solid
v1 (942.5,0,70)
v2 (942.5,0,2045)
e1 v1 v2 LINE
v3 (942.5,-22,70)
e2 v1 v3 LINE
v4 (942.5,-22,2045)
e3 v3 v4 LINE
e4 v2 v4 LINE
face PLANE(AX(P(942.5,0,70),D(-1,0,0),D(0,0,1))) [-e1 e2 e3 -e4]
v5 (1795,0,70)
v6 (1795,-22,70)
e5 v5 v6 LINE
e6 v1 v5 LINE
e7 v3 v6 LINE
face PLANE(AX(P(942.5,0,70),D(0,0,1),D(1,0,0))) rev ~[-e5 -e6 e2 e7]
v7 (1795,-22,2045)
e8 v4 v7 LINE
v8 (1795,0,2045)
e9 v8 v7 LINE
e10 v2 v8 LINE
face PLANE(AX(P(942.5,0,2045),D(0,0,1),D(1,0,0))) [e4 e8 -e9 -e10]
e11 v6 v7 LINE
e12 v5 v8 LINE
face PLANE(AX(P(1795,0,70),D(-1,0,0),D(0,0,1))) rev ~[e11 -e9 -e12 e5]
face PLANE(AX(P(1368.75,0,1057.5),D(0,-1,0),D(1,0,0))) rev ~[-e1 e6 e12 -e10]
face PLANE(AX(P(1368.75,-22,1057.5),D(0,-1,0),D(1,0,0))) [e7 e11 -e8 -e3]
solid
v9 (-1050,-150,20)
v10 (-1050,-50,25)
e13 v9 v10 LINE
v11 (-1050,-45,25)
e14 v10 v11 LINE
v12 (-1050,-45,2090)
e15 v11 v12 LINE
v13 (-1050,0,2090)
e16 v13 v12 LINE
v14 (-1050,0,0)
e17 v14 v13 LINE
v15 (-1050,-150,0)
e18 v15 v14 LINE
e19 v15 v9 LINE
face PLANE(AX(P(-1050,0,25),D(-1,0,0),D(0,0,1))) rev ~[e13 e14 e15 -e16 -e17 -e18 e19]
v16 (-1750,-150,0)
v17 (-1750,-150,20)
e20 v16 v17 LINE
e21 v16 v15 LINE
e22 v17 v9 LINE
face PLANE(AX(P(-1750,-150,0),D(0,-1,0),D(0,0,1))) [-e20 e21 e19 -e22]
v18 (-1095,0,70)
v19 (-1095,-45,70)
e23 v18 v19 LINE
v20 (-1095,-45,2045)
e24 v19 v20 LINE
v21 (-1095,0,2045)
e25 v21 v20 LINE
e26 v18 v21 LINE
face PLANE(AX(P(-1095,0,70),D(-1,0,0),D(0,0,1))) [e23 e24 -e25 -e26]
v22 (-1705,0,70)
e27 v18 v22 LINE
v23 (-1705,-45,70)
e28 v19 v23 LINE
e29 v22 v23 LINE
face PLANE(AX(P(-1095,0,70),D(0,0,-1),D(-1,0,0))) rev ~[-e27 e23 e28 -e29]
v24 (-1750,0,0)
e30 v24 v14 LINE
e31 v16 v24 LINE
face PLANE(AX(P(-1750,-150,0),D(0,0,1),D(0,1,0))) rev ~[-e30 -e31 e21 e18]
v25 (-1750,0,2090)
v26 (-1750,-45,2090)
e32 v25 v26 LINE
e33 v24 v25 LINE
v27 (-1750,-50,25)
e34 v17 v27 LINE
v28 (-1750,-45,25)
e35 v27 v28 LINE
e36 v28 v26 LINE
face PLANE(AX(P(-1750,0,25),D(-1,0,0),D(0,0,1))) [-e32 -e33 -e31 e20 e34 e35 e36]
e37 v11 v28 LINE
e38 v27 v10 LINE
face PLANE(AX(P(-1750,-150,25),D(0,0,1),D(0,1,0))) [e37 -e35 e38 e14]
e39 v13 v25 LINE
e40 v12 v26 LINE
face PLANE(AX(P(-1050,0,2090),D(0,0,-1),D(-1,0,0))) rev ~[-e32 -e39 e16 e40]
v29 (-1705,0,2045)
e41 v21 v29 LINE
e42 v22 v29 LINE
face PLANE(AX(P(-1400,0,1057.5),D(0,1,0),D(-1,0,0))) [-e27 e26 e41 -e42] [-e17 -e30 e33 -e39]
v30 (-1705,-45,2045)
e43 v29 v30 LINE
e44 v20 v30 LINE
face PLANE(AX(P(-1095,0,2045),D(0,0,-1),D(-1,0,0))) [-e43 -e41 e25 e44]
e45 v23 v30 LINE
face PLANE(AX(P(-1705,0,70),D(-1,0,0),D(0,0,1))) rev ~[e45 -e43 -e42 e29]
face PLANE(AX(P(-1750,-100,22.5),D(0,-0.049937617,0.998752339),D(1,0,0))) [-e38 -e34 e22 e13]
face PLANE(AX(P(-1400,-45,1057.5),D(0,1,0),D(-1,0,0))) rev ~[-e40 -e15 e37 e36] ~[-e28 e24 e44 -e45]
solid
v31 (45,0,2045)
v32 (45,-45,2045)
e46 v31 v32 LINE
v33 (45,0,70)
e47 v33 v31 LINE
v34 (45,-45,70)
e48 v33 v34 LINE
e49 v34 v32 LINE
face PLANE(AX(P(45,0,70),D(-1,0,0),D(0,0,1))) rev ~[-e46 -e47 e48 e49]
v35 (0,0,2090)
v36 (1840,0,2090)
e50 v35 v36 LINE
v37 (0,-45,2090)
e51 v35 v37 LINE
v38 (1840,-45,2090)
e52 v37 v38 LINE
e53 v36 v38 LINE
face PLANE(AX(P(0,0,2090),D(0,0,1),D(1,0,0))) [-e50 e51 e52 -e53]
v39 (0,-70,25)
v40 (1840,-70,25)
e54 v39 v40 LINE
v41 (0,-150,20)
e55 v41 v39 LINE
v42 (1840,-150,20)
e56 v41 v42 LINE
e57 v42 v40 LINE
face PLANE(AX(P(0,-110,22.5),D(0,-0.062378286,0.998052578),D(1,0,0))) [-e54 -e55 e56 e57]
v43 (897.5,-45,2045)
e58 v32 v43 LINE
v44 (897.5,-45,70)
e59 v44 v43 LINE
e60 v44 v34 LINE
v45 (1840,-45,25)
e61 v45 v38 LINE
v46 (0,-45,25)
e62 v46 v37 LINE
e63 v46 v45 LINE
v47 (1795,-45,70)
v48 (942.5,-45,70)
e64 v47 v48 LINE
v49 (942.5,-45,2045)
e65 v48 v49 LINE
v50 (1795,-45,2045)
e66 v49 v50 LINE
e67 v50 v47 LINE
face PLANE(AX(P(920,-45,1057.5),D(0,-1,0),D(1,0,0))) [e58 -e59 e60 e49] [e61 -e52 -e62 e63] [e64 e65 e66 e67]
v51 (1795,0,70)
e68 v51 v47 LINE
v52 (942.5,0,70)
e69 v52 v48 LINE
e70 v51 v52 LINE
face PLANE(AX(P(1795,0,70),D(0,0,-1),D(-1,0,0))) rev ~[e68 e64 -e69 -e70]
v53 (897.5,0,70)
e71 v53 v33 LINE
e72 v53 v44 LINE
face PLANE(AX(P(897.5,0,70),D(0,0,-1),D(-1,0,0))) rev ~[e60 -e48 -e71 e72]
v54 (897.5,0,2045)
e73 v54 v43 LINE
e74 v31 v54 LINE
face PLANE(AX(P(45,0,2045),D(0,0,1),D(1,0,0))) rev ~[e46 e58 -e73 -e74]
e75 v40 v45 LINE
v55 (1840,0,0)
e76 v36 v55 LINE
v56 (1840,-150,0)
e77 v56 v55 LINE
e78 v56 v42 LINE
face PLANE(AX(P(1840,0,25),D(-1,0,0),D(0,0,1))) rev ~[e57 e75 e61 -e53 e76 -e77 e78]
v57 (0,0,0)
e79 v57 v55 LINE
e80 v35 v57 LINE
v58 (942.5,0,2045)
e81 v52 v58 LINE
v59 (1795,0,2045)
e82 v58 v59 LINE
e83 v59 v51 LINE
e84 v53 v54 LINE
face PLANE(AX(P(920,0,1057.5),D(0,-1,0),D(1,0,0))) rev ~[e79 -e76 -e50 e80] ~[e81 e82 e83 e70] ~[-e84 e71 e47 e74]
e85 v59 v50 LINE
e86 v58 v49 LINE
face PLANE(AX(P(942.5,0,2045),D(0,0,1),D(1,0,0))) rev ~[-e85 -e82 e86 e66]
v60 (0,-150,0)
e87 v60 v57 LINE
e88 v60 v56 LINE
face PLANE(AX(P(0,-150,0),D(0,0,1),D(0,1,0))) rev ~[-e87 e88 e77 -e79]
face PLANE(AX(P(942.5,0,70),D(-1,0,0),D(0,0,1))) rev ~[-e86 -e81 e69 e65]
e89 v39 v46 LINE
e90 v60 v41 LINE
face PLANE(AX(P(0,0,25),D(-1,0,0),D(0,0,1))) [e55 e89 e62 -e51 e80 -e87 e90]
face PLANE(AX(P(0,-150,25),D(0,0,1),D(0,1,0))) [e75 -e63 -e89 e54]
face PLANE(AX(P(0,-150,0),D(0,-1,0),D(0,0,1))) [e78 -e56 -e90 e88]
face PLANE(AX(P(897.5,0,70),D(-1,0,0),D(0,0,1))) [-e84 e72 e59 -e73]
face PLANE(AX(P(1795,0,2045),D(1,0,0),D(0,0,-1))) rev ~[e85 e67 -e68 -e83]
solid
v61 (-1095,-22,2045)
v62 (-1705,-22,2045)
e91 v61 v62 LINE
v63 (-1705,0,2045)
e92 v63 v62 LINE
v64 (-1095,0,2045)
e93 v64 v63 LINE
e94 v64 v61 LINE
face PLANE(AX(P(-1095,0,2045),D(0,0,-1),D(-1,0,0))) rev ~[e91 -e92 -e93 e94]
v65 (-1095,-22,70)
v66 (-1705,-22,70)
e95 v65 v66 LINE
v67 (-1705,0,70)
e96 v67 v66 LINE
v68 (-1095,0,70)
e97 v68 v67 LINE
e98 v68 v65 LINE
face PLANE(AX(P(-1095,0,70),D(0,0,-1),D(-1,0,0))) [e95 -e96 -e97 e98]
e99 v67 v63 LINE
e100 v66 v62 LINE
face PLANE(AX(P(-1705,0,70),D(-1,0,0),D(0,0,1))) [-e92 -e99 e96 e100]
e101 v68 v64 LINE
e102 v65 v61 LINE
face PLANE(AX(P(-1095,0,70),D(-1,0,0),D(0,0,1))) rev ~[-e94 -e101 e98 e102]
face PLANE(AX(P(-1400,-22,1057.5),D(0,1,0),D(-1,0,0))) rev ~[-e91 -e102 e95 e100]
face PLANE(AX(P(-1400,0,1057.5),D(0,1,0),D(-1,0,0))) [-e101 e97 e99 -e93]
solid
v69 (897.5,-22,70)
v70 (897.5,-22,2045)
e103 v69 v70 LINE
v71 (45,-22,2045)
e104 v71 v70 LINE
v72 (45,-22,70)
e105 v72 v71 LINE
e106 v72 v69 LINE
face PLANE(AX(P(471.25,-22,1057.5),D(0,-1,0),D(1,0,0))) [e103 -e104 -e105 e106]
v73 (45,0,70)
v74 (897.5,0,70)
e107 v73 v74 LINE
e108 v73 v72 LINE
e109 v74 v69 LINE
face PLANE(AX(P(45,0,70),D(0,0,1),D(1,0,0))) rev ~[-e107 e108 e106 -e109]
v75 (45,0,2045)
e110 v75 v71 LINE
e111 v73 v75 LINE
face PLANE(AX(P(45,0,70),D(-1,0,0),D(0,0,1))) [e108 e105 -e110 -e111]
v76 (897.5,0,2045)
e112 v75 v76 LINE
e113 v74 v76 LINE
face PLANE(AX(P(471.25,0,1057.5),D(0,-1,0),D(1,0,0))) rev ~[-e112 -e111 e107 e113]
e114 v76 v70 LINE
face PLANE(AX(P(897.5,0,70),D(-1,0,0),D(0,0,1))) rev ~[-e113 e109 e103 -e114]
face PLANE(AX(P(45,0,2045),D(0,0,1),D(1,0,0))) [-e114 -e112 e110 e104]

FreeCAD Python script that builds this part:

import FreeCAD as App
import Part
import Sketcher
Q = App.Units.Quantity


def edges_at(feature, points):
    """Names of the edges that pass closest to the given points."""
    edges = feature.Shape.Edges
    near = lambda p: min(range(len(edges)), key=lambda i: edges[i].distToShape(Part.Vertex(*p))[0])
    return sorted({f"Edge{near(p) + 1}" for p in points})

doc = App.newDocument("Part")
body = doc.addObject("PartDesign::Body", "Body")

# Sketch on YZ plane
sketch1 = body.newObject("Sketcher::SketchObject", "Sketch")
sketch1.AttachmentSupport = (doc.getObject("YZ_Plane"), [""])
sketch1.MapMode = "FlatFace"
sketch1.addGeometry([
    Part.LineSegment(App.Vector(-150, 25, 0), App.Vector(-150, 0, 0)),
    Part.LineSegment(App.Vector(-150, 0, 0), App.Vector(0, 0, 0)),
    Part.LineSegment(App.Vector(0, 0, 0), App.Vector(0, 25, 0)),
    Part.LineSegment(App.Vector(0, 25, 0), App.Vector(-150, 25, 0)),
], False)
sketch1.addConstraint([
    Sketcher.Constraint("Coincident", 0, 2, 1, 1),
    Sketcher.Constraint("Coincident", 1, 2, 2, 1),
    Sketcher.Constraint("Coincident", 2, 2, 3, 1),
    Sketcher.Constraint("Coincident", 3, 2, 0, 1),
    Sketcher.Constraint("Vertical", 0),
    Sketcher.Constraint("Horizontal", 1),
    Sketcher.Constraint("Vertical", 2),
    Sketcher.Constraint("Horizontal", 3),
    Sketcher.Constraint("Coincident", 1, 2, -1, 1),
    Sketcher.Constraint("DistanceX", 1, 1, 1, 2, Q("150 mm")),
    Sketcher.Constraint("DistanceY", 0, 2, 0, 1, Q("25 mm")),
])
pad1 = body.newObject("PartDesign::Pad", "Pad")
pad1.Profile = sketch1
pad1.Length = 1840

# Sketch on XZ plane
sketch2 = body.newObject("Sketcher::SketchObject", "Sketch001")
sketch2.AttachmentSupport = (doc.getObject("XZ_Plane"), [""])
sketch2.MapMode = "FlatFace"
sketch2.addGeometry([
    Part.LineSegment(App.Vector(0, 2090, 0), App.Vector(0, 25, 0)),  # 0
    Part.LineSegment(App.Vector(0, 25, 0), App.Vector(1840, 25, 0)),  # 1
    Part.LineSegment(App.Vector(1840, 25, 0), App.Vector(1840, 2090, 0)),  # 2
    Part.LineSegment(App.Vector(1840, 2090, 0), App.Vector(0, 2090, 0)),  # 3
    Part.LineSegment(App.Vector(1795, 70, 0), App.Vector(942, 70, 0)),  # 4
    Part.LineSegment(App.Vector(942, 70, 0), App.Vector(942, 2045, 0)),  # 5
    Part.LineSegment(App.Vector(942, 2045, 0), App.Vector(1795, 2045, 0)),  # 6
    Part.LineSegment(App.Vector(1795, 2045, 0), App.Vector(1795, 70, 0)),  # 7
    Part.LineSegment(App.Vector(898, 70, 0), App.Vector(45, 70, 0)),  # 8
    Part.LineSegment(App.Vector(45, 70, 0), App.Vector(45, 2045, 0)),  # 9
    Part.LineSegment(App.Vector(45, 2045, 0), App.Vector(898, 2045, 0)),  # 10
    Part.LineSegment(App.Vector(898, 2045, 0), App.Vector(898, 70, 0)),  # 11
], False)
sketch2.addConstraint([
    Sketcher.Constraint("Coincident", 0, 2, 1, 1),
    Sketcher.Constraint("Coincident", 1, 2, 2, 1),
    Sketcher.Constraint("Coincident", 2, 2, 3, 1),
    Sketcher.Constraint("Coincident", 3, 2, 0, 1),
    Sketcher.Constraint("Coincident", 4, 2, 5, 1),
    Sketcher.Constraint("Coincident", 5, 2, 6, 1),
    Sketcher.Constraint("Coincident", 6, 2, 7, 1),
    Sketcher.Constraint("Coincident", 7, 2, 4, 1),
    Sketcher.Constraint("Coincident", 8, 2, 9, 1),
    Sketcher.Constraint("Coincident", 9, 2, 10, 1),
    Sketcher.Constraint("Coincident", 10, 2, 11, 1),
    Sketcher.Constraint("Coincident", 11, 2, 8, 1),
    Sketcher.Constraint("Vertical", 0),
    Sketcher.Constraint("Horizontal", 1),
    Sketcher.Constraint("Vertical", 2),
    Sketcher.Constraint("Horizontal", 3),
    Sketcher.Constraint("Horizontal", 4),
    Sketcher.Constraint("Vertical", 5),
    Sketcher.Constraint("Horizontal", 6),
    Sketcher.Constraint("Vertical", 7),
    Sketcher.Constraint("Horizontal", 8),
    Sketcher.Constraint("Vertical", 9),
    Sketcher.Constraint("Horizontal", 10),
    Sketcher.Constraint("Vertical", 11),
    Sketcher.Constraint("PointOnObject", 0, 2, -2),
    Sketcher.Constraint("Horizontal", 7, 2, 8, 2),
    Sketcher.Constraint("Horizontal", 6, 2, 9, 2),
    Sketcher.Constraint("Equal", 6, 8),
    Sketcher.Constraint("DistanceX", 1, 1, 1, 2, Q("1840 mm")),
    Sketcher.Constraint("DistanceY", 0, 2, 0, 1, Q("2065 mm")),
    Sketcher.Constraint("DistanceY", 5, 1, 5, 2, Q("1975 mm")),
    Sketcher.Constraint("DistanceX", 4, 2, 4, 1, Q("852.5 mm")),
    Sketcher.Constraint("DistanceY", -1, 1, 0, 2, Q("25 mm")),
    Sketcher.Constraint("DistanceY", -1, 1, 4, 2, Q("70 mm")),
    Sketcher.Constraint("DistanceX", -1, 1, 6, 2, Q("1795 mm")),
    Sketcher.Constraint("DistanceX", -1, 1, 8, 2, Q("45 mm")),
])
pad2 = body.newObject("PartDesign::Pad", "Pad001")
pad2.Profile = sketch2
pad2.Length = 45
doc.recompute()

chamfer = body.newObject("PartDesign::Chamfer", "Chamfer")
chamfer.Base = (pad2, edges_at(pad2, [(920, -150, 25)]))
chamfer.ChamferType = "Two distances"
chamfer.Size = 5
chamfer.Size2 = 80
body2 = doc.addObject("PartDesign::Body", "Body001")

# Sketch on XZ plane
sketch3 = body2.newObject("Sketcher::SketchObject", "Sketch002")
sketch3.AttachmentSupport = (doc.getObject("XZ_Plane001"), [""])
sketch3.MapMode = "FlatFace"
sketch3.addGeometry([
    Part.LineSegment(App.Vector(45, 2045, 0), App.Vector(45, 70, 0)),
    Part.LineSegment(App.Vector(45, 70, 0), App.Vector(898, 70, 0)),
    Part.LineSegment(App.Vector(898, 70, 0), App.Vector(898, 2045, 0)),
    Part.LineSegment(App.Vector(898, 2045, 0), App.Vector(45, 2045, 0)),
], False)
sketch3.addConstraint([
    Sketcher.Constraint("Coincident", 0, 2, 1, 1),
    Sketcher.Constraint("Coincident", 1, 2, 2, 1),
    Sketcher.Constraint("Coincident", 2, 2, 3, 1),
    Sketcher.Constraint("Coincident", 3, 2, 0, 1),
    Sketcher.Constraint("Vertical", 0),
    Sketcher.Constraint("Horizontal", 1),
    Sketcher.Constraint("Vertical", 2),
    Sketcher.Constraint("Horizontal", 3),
    Sketcher.Constraint("DistanceY", 0, 2, 0, 1, Q("1975 mm")),
    Sketcher.Constraint("DistanceX", 1, 1, 1, 2, Q("852.5 mm")),
    Sketcher.Constraint("DistanceX", -1, 1, 0, 2, Q("45 mm")),
    Sketcher.Constraint("DistanceY", -1, 1, 0, 2, Q("70 mm")),
])
pad3 = body2.newObject("PartDesign::Pad", "Pad002")
pad3.Profile = sketch3
pad3.Length = 22
body3 = doc.addObject("PartDesign::Body", "Body002")

# Sketch on XZ plane
sketch4 = body3.newObject("Sketcher::SketchObject", "Sketch003")
sketch4.AttachmentSupport = (doc.getObject("XZ_Plane002"), [""])
sketch4.MapMode = "FlatFace"
sketch4.addGeometry([
    Part.LineSegment(App.Vector(942, 2045, 0), App.Vector(942, 70, 0)),
    Part.LineSegment(App.Vector(942, 70, 0), App.Vector(1795, 70, 0)),
    Part.LineSegment(App.Vector(1795, 70, 0), App.Vector(1795, 2045, 0)),
    Part.LineSegment(App.Vector(1795, 2045, 0), App.Vector(942, 2045, 0)),
], False)
sketch4.addConstraint([
    Sketcher.Constraint("Coincident", 0, 2, 1, 1),
    Sketcher.Constraint("Coincident", 1, 2, 2, 1),
    Sketcher.Constraint("Coincident", 2, 2, 3, 1),
    Sketcher.Constraint("Coincident", 3, 2, 0, 1),
    Sketcher.Constraint("Vertical", 0),
    Sketcher.Constraint("Horizontal", 1),
    Sketcher.Constraint("Vertical", 2),
    Sketcher.Constraint("Horizontal", 3),
    Sketcher.Constraint("DistanceY", 0, 2, 0, 1, Q("1975 mm")),
    Sketcher.Constraint("DistanceX", 1, 1, 1, 2, Q("852.5 mm")),
    Sketcher.Constraint("DistanceY", -1, 1, 0, 2, Q("70 mm")),
    Sketcher.Constraint("DistanceX", -1, 1, 1, 2, Q("1795 mm")),
])
pad4 = body3.newObject("PartDesign::Pad", "Pad003")
pad4.Profile = sketch4
pad4.Length = 22
body4 = doc.addObject("PartDesign::Body", "Body003")

# Sketch on YZ plane
sketch5 = body4.newObject("Sketcher::SketchObject", "Sketch004")
sketch5.AttachmentSupport = (doc.getObject("YZ_Plane003"), [""])
sketch5.MapMode = "FlatFace"
sketch5.AttachmentOffset = App.Placement(App.Vector(0, 0, -1750), App.Rotation())
sketch5.addGeometry([
    Part.LineSegment(App.Vector(-150, 25, 0), App.Vector(-150, 0, 0)),
    Part.LineSegment(App.Vector(-150, 0, 0), App.Vector(0, 0, 0)),
    Part.LineSegment(App.Vector(0, 0, 0), App.Vector(0, 25, 0)),
    Part.LineSegment(App.Vector(0, 25, 0), App.Vector(-150, 25, 0)),
], False)
sketch5.addConstraint([
    Sketcher.Constraint("Coincident", 0, 2, 1, 1),
    Sketcher.Constraint("Coincident", 1, 2, 2, 1),
    Sketcher.Constraint("Coincident", 2, 2, 3, 1),
    Sketcher.Constraint("Coincident", 3, 2, 0, 1),
    Sketcher.Constraint("Vertical", 0),
    Sketcher.Constraint("Horizontal", 1),
    Sketcher.Constraint("Vertical", 2),
    Sketcher.Constraint("Horizontal", 3),
    Sketcher.Constraint("Coincident", 1, 2, -1, 1),
    Sketcher.Constraint("DistanceX", 1, 1, 1, 2, Q("150 mm")),
    Sketcher.Constraint("DistanceY", 0, 2, 0, 1, Q("25 mm")),
])
pad5 = body4.newObject("PartDesign::Pad", "Pad004")
pad5.Profile = sketch5
pad5.Length = 700

# Sketch on XZ plane
sketch6 = body4.newObject("Sketcher::SketchObject", "Sketch005")
sketch6.AttachmentSupport = (doc.getObject("XZ_Plane003"), [""])
sketch6.MapMode = "FlatFace"
sketch6.addGeometry([
    Part.LineSegment(App.Vector(-1050, 2090, 0), App.Vector(-1050, 25, 0)),  # 0
    Part.LineSegment(App.Vector(-1050, 25, 0), App.Vector(-1750, 25, 0)),  # 1
    Part.LineSegment(App.Vector(-1750, 25, 0), App.Vector(-1750, 2090, 0)),  # 2
    Part.LineSegment(App.Vector(-1750, 2090, 0), App.Vector(-1050, 2090, 0)),  # 3
    Part.LineSegment(App.Vector(-1705, 70, 0), App.Vector(-1095, 70, 0)),  # 4
    Part.LineSegment(App.Vector(-1095, 70, 0), App.Vector(-1095, 2045, 0)),  # 5
    Part.LineSegment(App.Vector(-1095, 2045, 0), App.Vector(-1705, 2045, 0)),  # 6
    Part.LineSegment(App.Vector(-1705, 2045, 0), App.Vector(-1705, 70, 0)),  # 7
], False)
sketch6.addConstraint([
    Sketcher.Constraint("Coincident", 0, 2, 1, 1),
    Sketcher.Constraint("Coincident", 1, 2, 2, 1),
    Sketcher.Constraint("Coincident", 2, 2, 3, 1),
    Sketcher.Constraint("Coincident", 3, 2, 0, 1),
    Sketcher.Constraint("Coincident", 4, 2, 5, 1),
    Sketcher.Constraint("Coincident", 5, 2, 6, 1),
    Sketcher.Constraint("Coincident", 6, 2, 7, 1),
    Sketcher.Constraint("Coincident", 7, 2, 4, 1),
    Sketcher.Constraint("Vertical", 0),
    Sketcher.Constraint("Horizontal", 1),
    Sketcher.Constraint("Vertical", 2),
    Sketcher.Constraint("Horizontal", 3),
    Sketcher.Constraint("Horizontal", 4),
    Sketcher.Constraint("Vertical", 5),
    Sketcher.Constraint("Horizontal", 6),
    Sketcher.Constraint("Vertical", 7),
    Sketcher.Constraint("DistanceX", 1, 2, 1, 1, Q("700 mm")),
    Sketcher.Constraint("DistanceX", 4, 1, 4, 2, Q("610 mm")),
    Sketcher.Constraint("DistanceY", 0, 2, 0, 1, Q("2065 mm")),
    Sketcher.Constraint("DistanceY", 5, 1, 5, 2, Q("1975 mm")),
    Sketcher.Constraint("DistanceX", 0, 2, -1, 1, Q("1050 mm")),
    Sketcher.Constraint("DistanceY", -1, 1, 0, 2, Q("25 mm")),
    Sketcher.Constraint("DistanceX", 4, 2, -1, 1, Q("1095 mm")),
    Sketcher.Constraint("DistanceY", -1, 1, 4, 2, Q("70 mm")),
])
pad6 = body4.newObject("PartDesign::Pad", "Pad005")
pad6.Profile = sketch6
pad6.Length = 45
doc.recompute()

chamfer2 = body4.newObject("PartDesign::Chamfer", "Chamfer001")
chamfer2.Base = (pad6, edges_at(pad6, [(-1400, -150, 25)]))
chamfer2.ChamferType = "Two distances"
chamfer2.Size = 5
chamfer2.Size2 = 100
body5 = doc.addObject("PartDesign::Body", "Body004")

# Sketch on XZ plane
sketch7 = body5.newObject("Sketcher::SketchObject", "Sketch006")
sketch7.AttachmentSupport = (doc.getObject("XZ_Plane004"), [""])
sketch7.MapMode = "FlatFace"
sketch7.addGeometry([
    Part.LineSegment(App.Vector(-1095, 2045, 0), App.Vector(-1095, 70, 0)),
    Part.LineSegment(App.Vector(-1095, 70, 0), App.Vector(-1705, 70, 0)),
    Part.LineSegment(App.Vector(-1705, 70, 0), App.Vector(-1705, 2045, 0)),
    Part.LineSegment(App.Vector(-1705, 2045, 0), App.Vector(-1095, 2045, 0)),
], False)
sketch7.addConstraint([
    Sketcher.Constraint("Coincident", 0, 2, 1, 1),
    Sketcher.Constraint("Coincident", 1, 2, 2, 1),
    Sketcher.Constraint("Coincident", 2, 2, 3, 1),
    Sketcher.Constraint("Coincident", 3, 2, 0, 1),
    Sketcher.Constraint("Vertical", 0),
    Sketcher.Constraint("Horizontal", 1),
    Sketcher.Constraint("Vertical", 2),
    Sketcher.Constraint("Horizontal", 3),
    Sketcher.Constraint("DistanceX", 1, 2, 1, 1, Q("610 mm")),
    Sketcher.Constraint("DistanceY", 0, 2, 0, 1, Q("1975 mm")),
    Sketcher.Constraint("DistanceX", 0, 2, -1, 1, Q("1095 mm")),
    Sketcher.Constraint("DistanceY", -1, 1, 0, 2, Q("70 mm")),
])
pad7 = body5.newObject("PartDesign::Pad", "Pad006")
pad7.Profile = sketch7
pad7.Length = 22

doc.recompute()
